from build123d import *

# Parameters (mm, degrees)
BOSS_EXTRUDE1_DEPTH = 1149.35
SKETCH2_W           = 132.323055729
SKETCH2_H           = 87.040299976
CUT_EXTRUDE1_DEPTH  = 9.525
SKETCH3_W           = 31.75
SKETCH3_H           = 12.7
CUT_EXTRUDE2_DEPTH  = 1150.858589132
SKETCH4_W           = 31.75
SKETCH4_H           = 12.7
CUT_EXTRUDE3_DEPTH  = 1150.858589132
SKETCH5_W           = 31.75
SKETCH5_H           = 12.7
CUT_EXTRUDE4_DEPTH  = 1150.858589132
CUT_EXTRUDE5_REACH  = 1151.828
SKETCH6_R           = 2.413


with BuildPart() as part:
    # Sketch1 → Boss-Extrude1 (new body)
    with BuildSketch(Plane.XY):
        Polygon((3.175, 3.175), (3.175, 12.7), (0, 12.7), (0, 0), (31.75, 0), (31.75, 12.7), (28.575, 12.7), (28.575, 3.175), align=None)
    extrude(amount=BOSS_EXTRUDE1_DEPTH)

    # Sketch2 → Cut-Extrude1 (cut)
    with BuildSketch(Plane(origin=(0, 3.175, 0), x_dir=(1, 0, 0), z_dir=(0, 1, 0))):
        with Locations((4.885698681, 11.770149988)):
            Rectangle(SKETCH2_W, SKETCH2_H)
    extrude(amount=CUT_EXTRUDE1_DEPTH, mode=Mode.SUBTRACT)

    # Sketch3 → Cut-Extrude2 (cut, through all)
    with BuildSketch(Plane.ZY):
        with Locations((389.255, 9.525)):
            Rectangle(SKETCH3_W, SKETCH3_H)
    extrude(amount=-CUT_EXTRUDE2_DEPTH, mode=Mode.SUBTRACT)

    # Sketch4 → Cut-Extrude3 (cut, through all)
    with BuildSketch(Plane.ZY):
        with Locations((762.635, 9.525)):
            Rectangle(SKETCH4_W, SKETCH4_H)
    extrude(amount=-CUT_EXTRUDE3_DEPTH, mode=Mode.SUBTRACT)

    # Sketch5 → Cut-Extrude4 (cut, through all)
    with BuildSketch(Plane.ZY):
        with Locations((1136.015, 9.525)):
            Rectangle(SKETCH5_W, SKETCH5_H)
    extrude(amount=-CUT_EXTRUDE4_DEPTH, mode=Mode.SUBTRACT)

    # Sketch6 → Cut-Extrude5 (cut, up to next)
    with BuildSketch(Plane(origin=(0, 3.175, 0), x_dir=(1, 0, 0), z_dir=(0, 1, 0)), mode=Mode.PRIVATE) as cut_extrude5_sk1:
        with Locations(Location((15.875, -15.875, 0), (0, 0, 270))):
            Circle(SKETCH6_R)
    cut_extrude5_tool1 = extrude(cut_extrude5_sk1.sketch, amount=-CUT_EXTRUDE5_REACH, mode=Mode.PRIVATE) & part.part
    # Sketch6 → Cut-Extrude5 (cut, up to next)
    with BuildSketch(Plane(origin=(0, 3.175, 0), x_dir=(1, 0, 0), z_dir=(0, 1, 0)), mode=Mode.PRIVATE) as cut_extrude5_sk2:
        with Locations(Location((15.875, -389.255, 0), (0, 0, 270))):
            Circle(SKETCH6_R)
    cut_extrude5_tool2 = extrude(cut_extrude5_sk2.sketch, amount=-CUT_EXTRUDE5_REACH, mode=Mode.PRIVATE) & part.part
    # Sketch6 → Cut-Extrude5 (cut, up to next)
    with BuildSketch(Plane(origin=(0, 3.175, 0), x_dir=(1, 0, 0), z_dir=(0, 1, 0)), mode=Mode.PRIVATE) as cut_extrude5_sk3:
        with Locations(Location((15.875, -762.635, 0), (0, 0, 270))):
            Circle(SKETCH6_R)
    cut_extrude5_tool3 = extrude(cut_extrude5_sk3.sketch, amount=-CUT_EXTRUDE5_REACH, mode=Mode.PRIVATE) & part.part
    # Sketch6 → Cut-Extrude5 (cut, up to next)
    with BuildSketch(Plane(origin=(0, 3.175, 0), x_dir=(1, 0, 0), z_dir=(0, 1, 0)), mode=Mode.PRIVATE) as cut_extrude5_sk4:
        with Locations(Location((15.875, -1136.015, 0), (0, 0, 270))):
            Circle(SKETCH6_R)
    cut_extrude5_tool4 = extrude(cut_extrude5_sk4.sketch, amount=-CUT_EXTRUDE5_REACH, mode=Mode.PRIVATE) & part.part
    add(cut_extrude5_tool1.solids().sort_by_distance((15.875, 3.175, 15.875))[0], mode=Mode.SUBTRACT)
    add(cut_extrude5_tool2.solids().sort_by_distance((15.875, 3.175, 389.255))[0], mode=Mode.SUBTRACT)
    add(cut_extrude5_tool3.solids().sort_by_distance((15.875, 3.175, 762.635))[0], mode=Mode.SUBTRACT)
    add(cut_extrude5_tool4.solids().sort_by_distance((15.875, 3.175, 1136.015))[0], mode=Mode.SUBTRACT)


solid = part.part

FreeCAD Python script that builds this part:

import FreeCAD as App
import Part
import Sketcher
from FreeCAD import Vector
Q = App.Units.Quantity

doc = App.newDocument("Part")
body = doc.addObject("PartDesign::Body", "Body")

# Sketch on XY plane
sketch1 = body.newObject("Sketcher::SketchObject", "Sketch")
sketch1.AttachmentSupport = (doc.getObject("XY_Plane"), [""])
sketch1.MapMode = "FlatFace"
sketch1.addGeometry([
    Part.LineSegment(Vector(3.175, 3.175, 0), Vector(3.175, 12.7, 0)),  # 0
    Part.LineSegment(Vector(3.175, 12.7, 0), Vector(0, 12.7, 0)),  # 1
    Part.LineSegment(Vector(0, 12.7, 0), Vector(0, 0, 0)),  # 2
    Part.LineSegment(Vector(0, 0, 0), Vector(31.75, 0, 0)),  # 3
    Part.LineSegment(Vector(31.75, 0, 0), Vector(31.75, 12.7, 0)),  # 4
    Part.LineSegment(Vector(31.75, 12.7, 0), Vector(28.575, 12.7, 0)),  # 5
    Part.LineSegment(Vector(28.575, 12.7, 0), Vector(28.575, 3.175, 0)),  # 6
    Part.LineSegment(Vector(28.575, 3.175, 0), Vector(3.175, 3.175, 0)),  # 7
], False)
sketch1.addConstraint([
    Sketcher.Constraint("Coincident", 0, 2, 1, 1),
    Sketcher.Constraint("Coincident", 1, 2, 2, 1),
    Sketcher.Constraint("Coincident", 2, 2, 3, 1),
    Sketcher.Constraint("Coincident", 3, 2, 4, 1),
    Sketcher.Constraint("Coincident", 4, 2, 5, 1),
    Sketcher.Constraint("Coincident", 5, 2, 6, 1),
    Sketcher.Constraint("Coincident", 6, 2, 7, 1),
    Sketcher.Constraint("Coincident", 7, 2, 0, 1),
    Sketcher.Constraint("Vertical", 0),
    Sketcher.Constraint("Horizontal", 1),
    Sketcher.Constraint("Vertical", 2),
    Sketcher.Constraint("Horizontal", 3),
    Sketcher.Constraint("Vertical", 4),
    Sketcher.Constraint("Horizontal", 5),
    Sketcher.Constraint("Vertical", 6),
    Sketcher.Constraint("Horizontal", 7),
    Sketcher.Constraint("Coincident", 2, 2, -1, 1),
    Sketcher.Constraint("Horizontal", 1, 2, 4, 2),
    Sketcher.Constraint("Equal", 1, 5),
    Sketcher.Constraint("DistanceX", 7, 2, 7, 1, Q("1 in")),
    Sketcher.Constraint("DistanceY", 2, 2, 2, 1, Q("0.5 in")),
    Sketcher.Constraint("DistanceX", 3, 1, 3, 2, Q("1.25 in")),
    Sketcher.Constraint("DistanceY", 0, 1, 0, 2, Q("0.375 in")),
])
pad1 = body.newObject("PartDesign::Pad", "Pad")
pad1.Profile = sketch1
pad1.Length = Q("45.25 in")

# Sketch on XZ plane
sketch2 = body.newObject("Sketcher::SketchObject", "Sketch001")
sketch2.AttachmentSupport = (doc.getObject("XZ_Plane"), [""])
sketch2.MapMode = "FlatFace"
sketch2.AttachmentOffset = App.Placement(Vector(0, 0, -0.125 * 25.4), App.Rotation())
sketch2.addGeometry([
    Part.LineSegment(Vector(-61.275829, -55.2903, 0), Vector(-61.275829, 31.75, 0)),
    Part.LineSegment(Vector(-61.275829, 31.75, 0), Vector(71.047227, 31.75, 0)),
    Part.LineSegment(Vector(71.047227, 31.75, 0), Vector(71.047227, -55.2903, 0)),
    Part.LineSegment(Vector(71.047227, -55.2903, 0), Vector(-61.275829, -55.2903, 0)),
], False)
sketch2.addConstraint([
    Sketcher.Constraint("Coincident", 0, 2, 1, 1),
    Sketcher.Constraint("Coincident", 1, 2, 2, 1),
    Sketcher.Constraint("Coincident", 2, 2, 3, 1),
    Sketcher.Constraint("Coincident", 3, 2, 0, 1),
    Sketcher.Constraint("Vertical", 0),
    Sketcher.Constraint("Horizontal", 1),
    Sketcher.Constraint("Vertical", 2),
    Sketcher.Constraint("Horizontal", 3),
    Sketcher.Constraint("DistanceY", -1, 1, 0, 2, Q("1.25 in")),
    Sketcher.Constraint("DistanceY", 0, 1, 0, 2, Q("87.0403 mm")),
    Sketcher.Constraint("DistanceX", 1, 1, 1, 2, Q("132.323056 mm")),
    Sketcher.Constraint("DistanceX", 0, 2, -1, 1, Q("61.275829 mm")),
])
pocket1 = body.newObject("PartDesign::Pocket", "Pocket")
pocket1.Profile = sketch2
pocket1.Length = Q("0.375 in")

# Sketch on YZ plane
sketch3 = body.newObject("Sketcher::SketchObject", "Sketch002")
sketch3.AttachmentSupport = (doc.getObject("YZ_Plane"), [""])
sketch3.MapMode = "FlatFace"
sketch3.addGeometry([
    Part.LineSegment(Vector(15.875, 373.38, 0), Vector(3.175, 373.38, 0)),
    Part.LineSegment(Vector(3.175, 373.38, 0), Vector(3.175, 405.13, 0)),
    Part.LineSegment(Vector(3.175, 405.13, 0), Vector(15.875, 405.13, 0)),
    Part.LineSegment(Vector(15.875, 405.13, 0), Vector(15.875, 373.38, 0)),
], False)
sketch3.addConstraint([
    Sketcher.Constraint("Coincident", 0, 2, 1, 1),
    Sketcher.Constraint("Coincident", 1, 2, 2, 1),
    Sketcher.Constraint("Coincident", 2, 2, 3, 1),
    Sketcher.Constraint("Coincident", 3, 2, 0, 1),
    Sketcher.Constraint("Horizontal", 0),
    Sketcher.Constraint("Vertical", 1),
    Sketcher.Constraint("Horizontal", 2),
    Sketcher.Constraint("Vertical", 3),
    Sketcher.Constraint("DistanceX", 0, 2, 0, 1, Q("0.5 in")),
    Sketcher.Constraint("DistanceY", 1, 1, 1, 2, Q("1.25 in")),
    Sketcher.Constraint("DistanceY", -1, 1, 0, 2, Q("14.7 in")),
    Sketcher.Constraint("DistanceX", -1, 1, 0, 2, Q("0.125 in")),
])
pocket2 = body.newObject("PartDesign::Pocket", "Pocket001")
pocket2.Profile = sketch3
pocket2.Type = "ThroughAll"
pocket2.Reversed = True

# Sketch on YZ plane
sketch4 = body.newObject("Sketcher::SketchObject", "Sketch003")
sketch4.AttachmentSupport = (doc.getObject("YZ_Plane"), [""])
sketch4.MapMode = "FlatFace"
sketch4.addGeometry([
    Part.LineSegment(Vector(15.875, 746.76, 0), Vector(3.175, 746.76, 0)),
    Part.LineSegment(Vector(3.175, 746.76, 0), Vector(3.175, 778.51, 0)),
    Part.LineSegment(Vector(3.175, 778.51, 0), Vector(15.875, 778.51, 0)),
    Part.LineSegment(Vector(15.875, 778.51, 0), Vector(15.875, 746.76, 0)),
], False)
sketch4.addConstraint([
    Sketcher.Constraint("Coincident", 0, 2, 1, 1),
    Sketcher.Constraint("Coincident", 1, 2, 2, 1),
    Sketcher.Constraint("Coincident", 2, 2, 3, 1),
    Sketcher.Constraint("Coincident", 3, 2, 0, 1),
    Sketcher.Constraint("Horizontal", 0),
    Sketcher.Constraint("Vertical", 1),
    Sketcher.Constraint("Horizontal", 2),
    Sketcher.Constraint("Vertical", 3),
    Sketcher.Constraint("DistanceX", 0, 2, 0, 1, Q("0.5 in")),
    Sketcher.Constraint("DistanceY", 1, 1, 1, 2, Q("1.25 in")),
    Sketcher.Constraint("DistanceY", -1, 1, 0, 2, Q("29.4 in")),
    Sketcher.Constraint("DistanceX", -1, 1, 0, 2, Q("0.125 in")),
])
pocket3 = body.newObject("PartDesign::Pocket", "Pocket002")
pocket3.Profile = sketch4
pocket3.Type = "ThroughAll"
pocket3.Reversed = True

# Sketch on YZ plane
sketch5 = body.newObject("Sketcher::SketchObject", "Sketch004")
sketch5.AttachmentSupport = (doc.getObject("YZ_Plane"), [""])
sketch5.MapMode = "FlatFace"
sketch5.addGeometry([
    Part.LineSegment(Vector(15.875, 1120.14, 0), Vector(3.175, 1120.14, 0)),
    Part.LineSegment(Vector(3.175, 1120.14, 0), Vector(3.175, 1151.89, 0)),
    Part.LineSegment(Vector(3.175, 1151.89, 0), Vector(15.875, 1151.89, 0)),
    Part.LineSegment(Vector(15.875, 1151.89, 0), Vector(15.875, 1120.14, 0)),
], False)
sketch5.addConstraint([
    Sketcher.Constraint("Coincident", 0, 2, 1, 1),
    Sketcher.Constraint("Coincident", 1, 2, 2, 1),
    Sketcher.Constraint("Coincident", 2, 2, 3, 1),
    Sketcher.Constraint("Coincident", 3, 2, 0, 1),
    Sketcher.Constraint("Horizontal", 0),
    Sketcher.Constraint("Vertical", 1),
    Sketcher.Constraint("Horizontal", 2),
    Sketcher.Constraint("Vertical", 3),
    Sketcher.Constraint("DistanceX", 0, 2, 0, 1, Q("0.5 in")),
    Sketcher.Constraint("DistanceY", 1, 1, 1, 2, Q("1.25 in")),
    Sketcher.Constraint("DistanceY", -1, 1, 0, 2, Q("44.1 in")),
    Sketcher.Constraint("DistanceX", -1, 1, 0, 2, Q("0.125 in")),
])
pocket4 = body.newObject("PartDesign::Pocket", "Pocket003")
pocket4.Profile = sketch5
pocket4.Type = "ThroughAll"
pocket4.Reversed = True

# Sketch on XZ plane
sketch6 = body.newObject("Sketcher::SketchObject", "Sketch005")
sketch6.AttachmentSupport = (doc.getObject("XZ_Plane"), [""])
sketch6.MapMode = "FlatFace"
sketch6.AttachmentOffset = App.Placement(Vector(0, 0, -0.125 * 25.4), App.Rotation())
sketch6.addGeometry(Part.Circle(Vector(15.875, 15.875, 0), Vector(0, 0, 1), 2.413), False)
sketch6.addConstraint([
    Sketcher.Constraint("Diameter", 0, Q("0.19 in")),
    Sketcher.Constraint("DistanceX", -1, 1, 0, 3, Q("0.625 in")),
    Sketcher.Constraint("DistanceY", -1, 1, 0, 3, Q("0.625 in")),
])
pocket5 = body.newObject("PartDesign::Pocket", "Pocket004")
pocket5.Profile = sketch6
pocket5.Type = "UpToFirst"
pocket5.Reversed = True

# Sketch on XZ plane
sketch7 = body.newObject("Sketcher::SketchObject", "Sketch006")
sketch7.AttachmentSupport = (doc.getObject("XZ_Plane"), [""])
sketch7.MapMode = "FlatFace"
sketch7.AttachmentOffset = App.Placement(Vector(0, 0, -0.125 * 25.4), App.Rotation())
sketch7.addGeometry(Part.Circle(Vector(15.875, 389.255, 0), Vector(0, 0, 1), 2.413), False)
sketch7.addConstraint([
    Sketcher.Constraint("Diameter", 0, Q("0.19 in")),
    Sketcher.Constraint("DistanceX", -1, 1, 0, 3, Q("0.625 in")),
    Sketcher.Constraint("DistanceY", -1, 1, 0, 3, Q("15.325 in")),
])
pocket6 = body.newObject("PartDesign::Pocket", "Pocket005")
pocket6.Profile = sketch7
pocket6.Type = "UpToFirst"
pocket6.Reversed = True

# Sketch on XZ plane
sketch8 = body.newObject("Sketcher::SketchObject", "Sketch007")
sketch8.AttachmentSupport = (doc.getObject("XZ_Plane"), [""])
sketch8.MapMode = "FlatFace"
sketch8.AttachmentOffset = App.Placement(Vector(0, 0, -0.125 * 25.4), App.Rotation())
sketch8.addGeometry(Part.Circle(Vector(15.875, 762.635, 0), Vector(0, 0, 1), 2.413), False)
sketch8.addConstraint([
    Sketcher.Constraint("Diameter", 0, Q("0.19 in")),
    Sketcher.Constraint("DistanceX", -1, 1, 0, 3, Q("0.625 in")),
    Sketcher.Constraint("DistanceY", -1, 1, 0, 3, Q("30.025 in")),
])
pocket7 = body.newObject("PartDesign::Pocket", "Pocket006")
pocket7.Profile = sketch8
pocket7.Type = "UpToFirst"
pocket7.Reversed = True

# Sketch on XZ plane
sketch9 = body.newObject("Sketcher::SketchObject", "Sketch008")
sketch9.AttachmentSupport = (doc.getObject("XZ_Plane"), [""])
sketch9.MapMode = "FlatFace"
sketch9.AttachmentOffset = App.Placement(Vector(0, 0, -0.125 * 25.4), App.Rotation())
sketch9.addGeometry(Part.Circle(Vector(15.875, 1136.015, 0), Vector(0, 0, 1), 2.413), False)
sketch9.addConstraint([
    Sketcher.Constraint("Diameter", 0, Q("0.19 in")),
    Sketcher.Constraint("DistanceX", -1, 1, 0, 3, Q("0.625 in")),
    Sketcher.Constraint("DistanceY", -1, 1, 0, 3, Q("44.725 in")),
])
pocket8 = body.newObject("PartDesign::Pocket", "Pocket007")
pocket8.Profile = sketch9
pocket8.Type = "UpToFirst"
pocket8.Reversed = True

doc.recompute()
